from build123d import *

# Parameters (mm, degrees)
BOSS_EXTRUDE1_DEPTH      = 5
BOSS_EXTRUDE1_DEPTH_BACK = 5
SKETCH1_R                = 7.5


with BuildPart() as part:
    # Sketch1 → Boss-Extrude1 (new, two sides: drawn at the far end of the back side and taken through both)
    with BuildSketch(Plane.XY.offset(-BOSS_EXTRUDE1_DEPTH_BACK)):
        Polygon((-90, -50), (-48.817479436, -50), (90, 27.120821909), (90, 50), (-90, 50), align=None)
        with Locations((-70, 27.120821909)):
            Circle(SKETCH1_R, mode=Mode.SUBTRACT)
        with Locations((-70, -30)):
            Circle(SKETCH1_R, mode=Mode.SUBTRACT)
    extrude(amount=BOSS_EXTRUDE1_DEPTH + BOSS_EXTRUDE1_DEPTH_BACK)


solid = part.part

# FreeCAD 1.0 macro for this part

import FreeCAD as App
import Part
import Sketcher
from FreeCAD import Vector


def add_polygon(sketch, points):
    """Adds a closed chain of lines whose ends are joined by coincident constraints."""
    first, n = sketch.GeometryCount, len(points)
    for a, b in zip(points, points[1:] + points[:1]):
        sketch.addGeometry(Part.LineSegment(App.Vector(*a, 0), App.Vector(*b, 0)), False)
    for i in range(n):
        sketch.addConstraint(Sketcher.Constraint("Coincident", first + i, 2, first + (i + 1) % n, 1))

doc = App.newDocument("Part")
body = doc.addObject("PartDesign::Body", "Body")

# Sketch on XY plane
sketch1 = body.newObject("Sketcher::SketchObject", "Sketch")
sketch1.AttachmentSupport = (doc.getObject("XY_Plane"), [""])
sketch1.MapMode = "FlatFace"
add_polygon(sketch1, [(-90, -50), (-48.817479, -50), (90, 27.120822), (90, 50), (-90, 50)])  # lines 0-4
sketch1.addGeometry(Part.Circle(Vector(-70, -30, 0), Vector(0, 0, 1), 7.5), False)  # 5
sketch1.addGeometry(Part.Circle(Vector(-70, 27.120822, 0), Vector(0, 0, 1), 7.5), False)  # 6
sketch1.addConstraint(Sketcher.Constraint("Horizontal", 0))
sketch1.addConstraint(Sketcher.Constraint("Vertical", 2))
sketch1.addConstraint(Sketcher.Constraint("Horizontal", 3))
sketch1.addConstraint(Sketcher.Constraint("Vertical", 4))
sketch1.addConstraint(Sketcher.Constraint("Equal", 5, 6))
sketch1.addConstraint(Sketcher.Constraint("Symmetric", 2, 2, 4, 2, -1, 1))
sketch1.addConstraint(Sketcher.Constraint("Horizontal", 6, 3, 1, 2))
sketch1.addConstraint(Sketcher.Constraint("Vertical", 5, 3, 6, 3))
sketch1.addConstraint(Sketcher.Constraint("Diameter", 5, 15.0))
sketch1.addConstraint(Sketcher.Constraint("DistanceX", 3, 2, 3, 1, 180.0))
sketch1.addConstraint(Sketcher.Constraint("DistanceY", 4, 2, 4, 1, 100.0))
sketch1.addConstraint(Sketcher.Constraint("DistanceX", 5, 3, -1, 1, 70.0))
sketch1.addConstraint(Sketcher.Constraint("DistanceY", 5, 3, -1, 1, 30.0))
sketch1.addConstraint(Sketcher.Constraint("DistanceX", 0, 1, 0, 2, 41.182521))
sketch1.addConstraint(Sketcher.Constraint("DistanceY", 2, 1, 2, 2, 22.879178))
pad1 = body.newObject("PartDesign::Pad", "Pad")
pad1.Profile = sketch1
pad1.Type = "TwoLengths"
pad1.Length = 5
pad1.Length2 = 5

doc.recompute()
